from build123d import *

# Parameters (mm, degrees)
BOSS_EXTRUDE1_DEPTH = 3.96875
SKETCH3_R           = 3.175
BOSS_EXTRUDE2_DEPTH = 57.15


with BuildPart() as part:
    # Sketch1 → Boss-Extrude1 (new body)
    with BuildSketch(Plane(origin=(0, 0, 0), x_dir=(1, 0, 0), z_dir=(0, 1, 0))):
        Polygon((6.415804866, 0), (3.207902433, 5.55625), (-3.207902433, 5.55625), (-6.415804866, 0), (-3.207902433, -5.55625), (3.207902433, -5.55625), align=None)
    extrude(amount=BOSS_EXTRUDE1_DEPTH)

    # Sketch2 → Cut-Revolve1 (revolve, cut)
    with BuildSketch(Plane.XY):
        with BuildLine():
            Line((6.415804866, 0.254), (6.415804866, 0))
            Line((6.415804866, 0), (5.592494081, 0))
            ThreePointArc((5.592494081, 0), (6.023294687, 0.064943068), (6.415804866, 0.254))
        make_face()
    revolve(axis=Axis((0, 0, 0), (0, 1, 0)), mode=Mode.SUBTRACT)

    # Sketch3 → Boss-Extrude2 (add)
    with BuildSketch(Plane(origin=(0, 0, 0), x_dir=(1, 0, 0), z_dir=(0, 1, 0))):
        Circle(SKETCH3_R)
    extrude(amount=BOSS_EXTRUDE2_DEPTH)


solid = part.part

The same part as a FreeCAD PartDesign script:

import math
import FreeCAD as App
import Part
import Sketcher
Q = App.Units.Quantity


def add_polygon(sketch, points):
    """Adds a closed chain of lines whose ends are joined by coincident constraints."""
    first, n = sketch.GeometryCount, len(points)
    for a, b in zip(points, points[1:] + points[:1]):
        sketch.addGeometry(Part.LineSegment(App.Vector(*a, 0), App.Vector(*b, 0)), False)
    for i in range(n):
        sketch.addConstraint(Sketcher.Constraint("Coincident", first + i, 2, first + (i + 1) % n, 1))

doc = App.newDocument("Part")
params = doc.addObject("Spreadsheet::Sheet", "Params")
for row, (alias, value) in enumerate([
    ("pad1_length", "0.15625 in"),
    ("sketch2_height", "0.01 in"),
    ("groove_angle", "360 deg"),
    ("sketch3_diameter", "0.25 in"),
    ("pad2_length", "2.25 in"),
], start=1):
    params.set(f"A{row}", alias)
    params.set(f"B{row}", "=" + value)
    params.setAlias(f"B{row}", alias)

body = doc.addObject("PartDesign::Body", "Body")

sketch1 = doc.addObject("Sketcher::SketchObject", "Sketch")
body.addObject(sketch1)
sketch1.AttachmentSupport = (doc.XZ_Plane, [""])
sketch1.MapMode = "FlatFace"
add_polygon(sketch1, [(6, 0), (3, -6), (-3, -6), (-6, 0), (-3, 6), (3, 6)])
sketch1.addConstraint([
    Sketcher.Constraint("Horizontal", 1),
    Sketcher.Constraint("Horizontal", 4),
    Sketcher.Constraint("Symmetric", 0, 2, 3, 2, -1, 1),
    Sketcher.Constraint("Symmetric", 2, 2, 5, 2, -1, 1),
    Sketcher.Constraint("PointOnObject", 2, 2, -1),
    Sketcher.Constraint("Parallel", 2, 5),
    Sketcher.Constraint("Vertical", 1, 2, 3, 2),
    Sketcher.Constraint("Angle", 0, Q("-120 deg")),
    Sketcher.Constraint("DistanceY", 0, 2, -1, 1, Q("0.21875 in")),
    Sketcher.Constraint("DistanceX", 1, 2, 1, 1, Q("6.415805 mm")),
])
pad1 = doc.addObject("PartDesign::Pad", "Pad")
body.addObject(pad1)
pad1.Profile = sketch1
pad1.setExpression("Length", "Params.pad1_length")
pad1.Reversed = True

sketch2 = doc.addObject("Sketcher::SketchObject", "Sketch001")
body.addObject(sketch2)
sketch2.AttachmentSupport = (doc.XY_Plane, [""])
sketch2.MapMode = "FlatFace"
sketch2.addGeometry([
    Part.LineSegment(App.Vector(6.42, 0, 0), App.Vector(6.42, 0.25, 0)),
    Part.ArcOfCircle(Part.Circle(App.Vector(5.59, 1.46, 0), App.Vector(0, 0, 1), 1.46), math.radians(-90), math.radians(-56)),
    Part.LineSegment(App.Vector(5.59, 0, 0), App.Vector(6.42, 0, 0)),
], False)
sketch2.addConstraint([
    Sketcher.Constraint("Coincident", 0, 2, 1, 2),
    Sketcher.Constraint("Tangent", 1, 1, 2, 1),
    Sketcher.Constraint("Coincident", 2, 2, 0, 1),
    Sketcher.Constraint("Vertical", 0),
    Sketcher.Constraint("Horizontal", 2),
    Sketcher.Constraint("PointOnObject", 1, 1, -1),
    Sketcher.Constraint("DistanceY", 0, 1, 0, 2, Q("0.01 in")),
    Sketcher.Constraint("Radius", 1, Q("1.461332 mm")),
    Sketcher.Constraint("DistanceX", -1, 1, 1, 3, Q("5.592494 mm")),
])
sketch2.setExpression("Constraints[6]", "Params.sketch2_height")
groove = doc.addObject("PartDesign::Groove", "Groove")
body.addObject(groove)
groove.Profile = sketch2
groove.ReferenceAxis = (sketch2, ["V_Axis"])
groove.setExpression("Angle", "Params.groove_angle")

sketch3 = doc.addObject("Sketcher::SketchObject", "Sketch002")
body.addObject(sketch3)
sketch3.AttachmentSupport = (doc.XZ_Plane, [""])
sketch3.MapMode = "FlatFace"
sketch3.addGeometry(Part.Circle(App.Vector(0, 0, 0), App.Vector(0, 0, 1), 3.2), False)
sketch3.addConstraint([
    Sketcher.Constraint("Coincident", 0, 3, -1, 1),
    Sketcher.Constraint("Diameter", 0, Q("0.25 in")),
])
sketch3.setExpression("Constraints[1]", "Params.sketch3_diameter")
pad2 = doc.addObject("PartDesign::Pad", "Pad001")
body.addObject(pad2)
pad2.Profile = sketch3
pad2.setExpression("Length", "Params.pad2_length")
pad2.Reversed = True

doc.recompute()
